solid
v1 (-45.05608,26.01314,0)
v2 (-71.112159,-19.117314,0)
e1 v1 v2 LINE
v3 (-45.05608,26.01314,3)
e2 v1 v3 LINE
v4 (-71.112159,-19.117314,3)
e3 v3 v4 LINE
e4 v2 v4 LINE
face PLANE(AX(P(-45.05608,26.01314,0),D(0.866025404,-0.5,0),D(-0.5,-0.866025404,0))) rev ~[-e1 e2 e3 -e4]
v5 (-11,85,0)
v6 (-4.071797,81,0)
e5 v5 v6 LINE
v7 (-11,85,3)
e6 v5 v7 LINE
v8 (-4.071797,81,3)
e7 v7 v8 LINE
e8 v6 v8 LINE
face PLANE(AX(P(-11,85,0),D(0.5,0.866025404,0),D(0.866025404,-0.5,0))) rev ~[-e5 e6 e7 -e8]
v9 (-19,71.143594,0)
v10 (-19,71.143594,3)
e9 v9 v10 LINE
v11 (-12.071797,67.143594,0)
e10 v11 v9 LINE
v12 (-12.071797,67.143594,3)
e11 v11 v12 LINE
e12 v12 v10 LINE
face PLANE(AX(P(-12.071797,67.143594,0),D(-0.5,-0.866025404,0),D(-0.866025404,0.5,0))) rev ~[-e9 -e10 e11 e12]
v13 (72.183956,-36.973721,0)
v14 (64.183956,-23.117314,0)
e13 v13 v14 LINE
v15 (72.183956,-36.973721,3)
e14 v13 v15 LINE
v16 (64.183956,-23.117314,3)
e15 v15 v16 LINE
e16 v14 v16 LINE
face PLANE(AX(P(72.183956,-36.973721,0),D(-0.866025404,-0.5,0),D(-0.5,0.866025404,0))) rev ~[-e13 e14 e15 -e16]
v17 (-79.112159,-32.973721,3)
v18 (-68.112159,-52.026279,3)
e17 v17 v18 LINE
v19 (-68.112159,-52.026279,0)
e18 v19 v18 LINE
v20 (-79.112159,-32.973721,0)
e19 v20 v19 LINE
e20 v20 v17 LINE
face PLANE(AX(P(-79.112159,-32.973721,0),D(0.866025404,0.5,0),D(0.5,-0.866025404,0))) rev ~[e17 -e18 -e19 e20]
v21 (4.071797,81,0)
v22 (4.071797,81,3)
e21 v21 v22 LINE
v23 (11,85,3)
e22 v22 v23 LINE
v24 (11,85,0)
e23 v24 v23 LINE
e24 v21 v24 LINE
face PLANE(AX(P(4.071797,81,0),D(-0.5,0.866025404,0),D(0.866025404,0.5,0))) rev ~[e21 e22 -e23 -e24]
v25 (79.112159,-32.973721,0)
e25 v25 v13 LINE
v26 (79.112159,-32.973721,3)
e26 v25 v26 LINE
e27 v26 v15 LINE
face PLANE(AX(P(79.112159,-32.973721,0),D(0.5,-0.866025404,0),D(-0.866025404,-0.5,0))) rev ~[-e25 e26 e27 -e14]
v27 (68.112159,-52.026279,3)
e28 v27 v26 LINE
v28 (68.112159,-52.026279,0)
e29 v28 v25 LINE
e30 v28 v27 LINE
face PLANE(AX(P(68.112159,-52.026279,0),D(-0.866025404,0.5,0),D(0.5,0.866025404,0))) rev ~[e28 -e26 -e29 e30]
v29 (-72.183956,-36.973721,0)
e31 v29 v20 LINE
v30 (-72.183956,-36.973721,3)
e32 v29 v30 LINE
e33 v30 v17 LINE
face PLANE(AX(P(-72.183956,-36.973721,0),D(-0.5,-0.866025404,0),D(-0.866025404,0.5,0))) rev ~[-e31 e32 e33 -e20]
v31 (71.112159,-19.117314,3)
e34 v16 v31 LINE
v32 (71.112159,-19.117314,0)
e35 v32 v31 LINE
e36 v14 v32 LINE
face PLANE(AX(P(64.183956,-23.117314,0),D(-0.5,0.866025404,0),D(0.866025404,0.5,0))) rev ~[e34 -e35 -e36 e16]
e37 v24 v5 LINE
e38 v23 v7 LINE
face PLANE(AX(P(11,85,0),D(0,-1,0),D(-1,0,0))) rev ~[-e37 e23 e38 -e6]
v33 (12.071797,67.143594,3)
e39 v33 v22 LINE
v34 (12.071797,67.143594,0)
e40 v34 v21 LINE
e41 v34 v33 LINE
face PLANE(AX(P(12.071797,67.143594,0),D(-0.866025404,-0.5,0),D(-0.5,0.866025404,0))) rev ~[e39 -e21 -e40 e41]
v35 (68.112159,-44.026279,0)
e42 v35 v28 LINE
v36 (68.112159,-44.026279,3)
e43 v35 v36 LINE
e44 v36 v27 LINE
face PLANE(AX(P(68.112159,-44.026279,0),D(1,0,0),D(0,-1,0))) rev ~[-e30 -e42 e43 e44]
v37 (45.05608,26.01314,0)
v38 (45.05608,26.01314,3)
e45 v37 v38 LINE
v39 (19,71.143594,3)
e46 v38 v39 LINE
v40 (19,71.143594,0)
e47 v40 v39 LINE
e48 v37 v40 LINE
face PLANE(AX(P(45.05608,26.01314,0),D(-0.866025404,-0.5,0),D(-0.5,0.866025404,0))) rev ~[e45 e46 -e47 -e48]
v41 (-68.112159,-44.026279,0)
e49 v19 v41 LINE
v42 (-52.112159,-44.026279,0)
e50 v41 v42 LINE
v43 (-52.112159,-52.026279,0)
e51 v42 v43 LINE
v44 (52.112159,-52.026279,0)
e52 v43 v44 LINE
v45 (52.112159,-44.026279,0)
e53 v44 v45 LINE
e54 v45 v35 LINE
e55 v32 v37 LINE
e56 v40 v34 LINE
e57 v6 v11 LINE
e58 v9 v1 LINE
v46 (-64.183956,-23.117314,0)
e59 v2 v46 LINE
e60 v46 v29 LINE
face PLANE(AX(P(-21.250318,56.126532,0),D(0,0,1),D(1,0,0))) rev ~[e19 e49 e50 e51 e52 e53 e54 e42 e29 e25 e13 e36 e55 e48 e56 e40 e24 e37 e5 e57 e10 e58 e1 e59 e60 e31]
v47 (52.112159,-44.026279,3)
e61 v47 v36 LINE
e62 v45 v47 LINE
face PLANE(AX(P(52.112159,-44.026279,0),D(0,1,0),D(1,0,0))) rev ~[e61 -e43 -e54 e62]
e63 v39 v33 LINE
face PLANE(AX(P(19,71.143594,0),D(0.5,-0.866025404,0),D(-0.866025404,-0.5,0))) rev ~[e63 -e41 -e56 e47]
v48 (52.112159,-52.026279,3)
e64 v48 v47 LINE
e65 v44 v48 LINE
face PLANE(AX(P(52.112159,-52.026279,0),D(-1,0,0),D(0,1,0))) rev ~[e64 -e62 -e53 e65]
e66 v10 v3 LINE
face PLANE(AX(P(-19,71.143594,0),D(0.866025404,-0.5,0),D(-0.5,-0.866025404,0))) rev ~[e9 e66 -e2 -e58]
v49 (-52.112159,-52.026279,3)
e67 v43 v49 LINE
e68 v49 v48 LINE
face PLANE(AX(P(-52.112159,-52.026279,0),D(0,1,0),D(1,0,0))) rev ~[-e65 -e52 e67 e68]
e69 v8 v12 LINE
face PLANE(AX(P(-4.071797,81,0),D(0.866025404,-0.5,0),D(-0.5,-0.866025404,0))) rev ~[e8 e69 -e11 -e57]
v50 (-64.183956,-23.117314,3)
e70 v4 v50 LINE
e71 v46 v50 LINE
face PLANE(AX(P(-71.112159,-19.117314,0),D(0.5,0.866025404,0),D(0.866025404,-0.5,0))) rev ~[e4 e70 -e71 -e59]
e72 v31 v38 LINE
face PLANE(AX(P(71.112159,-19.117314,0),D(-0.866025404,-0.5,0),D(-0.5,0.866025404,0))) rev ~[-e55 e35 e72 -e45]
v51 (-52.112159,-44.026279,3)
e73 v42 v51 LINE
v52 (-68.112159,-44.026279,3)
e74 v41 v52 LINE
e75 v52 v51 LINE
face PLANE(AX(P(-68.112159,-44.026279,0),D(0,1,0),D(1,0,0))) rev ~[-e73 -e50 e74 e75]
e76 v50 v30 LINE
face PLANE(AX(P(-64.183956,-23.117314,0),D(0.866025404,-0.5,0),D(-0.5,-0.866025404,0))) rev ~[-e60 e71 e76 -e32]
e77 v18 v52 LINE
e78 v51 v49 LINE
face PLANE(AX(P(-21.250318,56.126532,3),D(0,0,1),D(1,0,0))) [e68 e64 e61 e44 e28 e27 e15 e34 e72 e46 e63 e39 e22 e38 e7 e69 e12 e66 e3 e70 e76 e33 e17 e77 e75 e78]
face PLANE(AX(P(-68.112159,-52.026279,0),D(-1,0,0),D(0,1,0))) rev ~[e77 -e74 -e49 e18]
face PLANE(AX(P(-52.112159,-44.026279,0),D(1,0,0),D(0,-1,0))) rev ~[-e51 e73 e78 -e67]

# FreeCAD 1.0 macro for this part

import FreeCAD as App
import Part
import Sketcher

V = App.Vector
Q = App.Units.Quantity


def add_polygon(sketch, points):
    """Adds a closed chain of lines whose ends are joined by coincident constraints."""
    first, n = sketch.GeometryCount, len(points)
    for a, b in zip(points, points[1:] + points[:1]):
        sketch.addGeometry(Part.LineSegment(App.Vector(*a, 0), App.Vector(*b, 0)), False)
    for i in range(n):
        sketch.addConstraint(Sketcher.Constraint("Coincident", first + i, 2, first + (i + 1) % n, 1))

doc = App.newDocument("Part")
body = doc.addObject("PartDesign::Body", "Body")

# Sketch on XY plane
sketch1 = doc.addObject("Sketcher::SketchObject", "Sketch")
body.addObject(sketch1)
sketch1.AttachmentSupport = (doc.XY_Plane, [""])
sketch1.MapMode = "FlatFace"
add_polygon(sketch1, [(-11, 85), (-4, 81), (-12, 67), (-19, 71), (-45, 26), (-71, -19), (-64, -23), (-72, -37), (-79, -33), (-68, -52), (-68, -44), (-52, -44), (-52, -52), (52, -52), (52, -44), (68, -44), (68, -52), (79, -33), (72, -37), (64, -23), (71, -19), (45, 26), (19, 71), (12, 67), (4, 81), (11, 85)])  # lines 0-25
sketch1.addConstraint(Sketcher.Constraint("Vertical", 9))
sketch1.addConstraint(Sketcher.Constraint("Horizontal", 10))
sketch1.addConstraint(Sketcher.Constraint("Vertical", 11))
sketch1.addConstraint(Sketcher.Constraint("Horizontal", 12))
sketch1.addConstraint(Sketcher.Constraint("Vertical", 13))
sketch1.addConstraint(Sketcher.Constraint("Horizontal", 14))
sketch1.addConstraint(Sketcher.Constraint("Vertical", 15))
sketch1.addConstraint(Sketcher.Constraint("Horizontal", 25))
sketch1.addConstraint(Sketcher.Constraint("Symmetric", 10, 2, 13, 2, -2))
sketch1.addConstraint(Sketcher.Constraint("Symmetric", 8, 2, 15, 2, -2))
sketch1.addConstraint(Sketcher.Constraint("Symmetric", 7, 2, 16, 2, -2))
sketch1.addConstraint(Sketcher.Constraint("Symmetric", 6, 2, 17, 2, -2))
sketch1.addConstraint(Sketcher.Constraint("Symmetric", 5, 2, 18, 2, -2))
sketch1.addConstraint(Sketcher.Constraint("Symmetric", 4, 2, 19, 2, -2))
sketch1.addConstraint(Sketcher.Constraint("Symmetric", 3, 2, 20, 2, -2))
sketch1.addConstraint(Sketcher.Constraint("Symmetric", 2, 2, 21, 2, -2))
sketch1.addConstraint(Sketcher.Constraint("Symmetric", 1, 2, 22, 2, -2))
sketch1.addConstraint(Sketcher.Constraint("Symmetric", 0, 2, 23, 2, -2))
sketch1.addConstraint(Sketcher.Constraint("Perpendicular", 0, 1))
sketch1.addConstraint(Sketcher.Constraint("Perpendicular", 1, 2))
sketch1.addConstraint(Sketcher.Constraint("Perpendicular", 2, 3))
sketch1.addConstraint(Sketcher.Constraint("Parallel", 3, 4))
sketch1.addConstraint(Sketcher.Constraint("Perpendicular", 4, 5))
sketch1.addConstraint(Sketcher.Constraint("Perpendicular", 5, 6))
sketch1.addConstraint(Sketcher.Constraint("Perpendicular", 6, 7))
sketch1.addConstraint(Sketcher.Constraint("Perpendicular", 7, 16))
sketch1.addConstraint(Sketcher.Constraint("Perpendicular", 23, 24))
sketch1.addConstraint(Sketcher.Constraint("Horizontal", 8, 2, 11, 2))
sketch1.addConstraint(Sketcher.Constraint("Equal", 0, 2))
sketch1.addConstraint(Sketcher.Constraint("Equal", 3, 4))
sketch1.addConstraint(Sketcher.Constraint("Equal", 2, 5))
sketch1.addConstraint(Sketcher.Constraint("Equal", 1, 6))
sketch1.addConstraint(Sketcher.Constraint("Equal", 5, 7))
sketch1.addConstraint(Sketcher.Constraint("DistanceX", 10, 1, 10, 2, Q("16 mm")))
sketch1.addConstraint(Sketcher.Constraint("DistanceX", 25, 2, 25, 1, Q("22 mm")))
sketch1.addConstraint(Sketcher.Constraint("DistanceY", 9, 1, 9, 2, Q("8 mm")))
sketch1.addConstraint(Sketcher.Constraint("Angle", 0, Q("-30 deg")))
sketch1.addConstraint(Sketcher.Constraint("Distance", 0, Q("8 mm")))
sketch1.addConstraint(Sketcher.Constraint("Distance", 1, Q("16 mm")))
sketch1.addConstraint(Sketcher.Constraint("Distance", 8, Q("22 mm")))
sketch1.addConstraint(Sketcher.Constraint("DistanceY", -1, 1, 0, 2, Q("81 mm")))
sketch1.addConstraint(Sketcher.Constraint("DistanceX", 12, 1, 12, 2, Q("104.224319 mm")))
pad1 = doc.addObject("PartDesign::Pad", "Pad")
body.addObject(pad1)
pad1.Profile = sketch1
pad1.Length = 3

doc.recompute()
